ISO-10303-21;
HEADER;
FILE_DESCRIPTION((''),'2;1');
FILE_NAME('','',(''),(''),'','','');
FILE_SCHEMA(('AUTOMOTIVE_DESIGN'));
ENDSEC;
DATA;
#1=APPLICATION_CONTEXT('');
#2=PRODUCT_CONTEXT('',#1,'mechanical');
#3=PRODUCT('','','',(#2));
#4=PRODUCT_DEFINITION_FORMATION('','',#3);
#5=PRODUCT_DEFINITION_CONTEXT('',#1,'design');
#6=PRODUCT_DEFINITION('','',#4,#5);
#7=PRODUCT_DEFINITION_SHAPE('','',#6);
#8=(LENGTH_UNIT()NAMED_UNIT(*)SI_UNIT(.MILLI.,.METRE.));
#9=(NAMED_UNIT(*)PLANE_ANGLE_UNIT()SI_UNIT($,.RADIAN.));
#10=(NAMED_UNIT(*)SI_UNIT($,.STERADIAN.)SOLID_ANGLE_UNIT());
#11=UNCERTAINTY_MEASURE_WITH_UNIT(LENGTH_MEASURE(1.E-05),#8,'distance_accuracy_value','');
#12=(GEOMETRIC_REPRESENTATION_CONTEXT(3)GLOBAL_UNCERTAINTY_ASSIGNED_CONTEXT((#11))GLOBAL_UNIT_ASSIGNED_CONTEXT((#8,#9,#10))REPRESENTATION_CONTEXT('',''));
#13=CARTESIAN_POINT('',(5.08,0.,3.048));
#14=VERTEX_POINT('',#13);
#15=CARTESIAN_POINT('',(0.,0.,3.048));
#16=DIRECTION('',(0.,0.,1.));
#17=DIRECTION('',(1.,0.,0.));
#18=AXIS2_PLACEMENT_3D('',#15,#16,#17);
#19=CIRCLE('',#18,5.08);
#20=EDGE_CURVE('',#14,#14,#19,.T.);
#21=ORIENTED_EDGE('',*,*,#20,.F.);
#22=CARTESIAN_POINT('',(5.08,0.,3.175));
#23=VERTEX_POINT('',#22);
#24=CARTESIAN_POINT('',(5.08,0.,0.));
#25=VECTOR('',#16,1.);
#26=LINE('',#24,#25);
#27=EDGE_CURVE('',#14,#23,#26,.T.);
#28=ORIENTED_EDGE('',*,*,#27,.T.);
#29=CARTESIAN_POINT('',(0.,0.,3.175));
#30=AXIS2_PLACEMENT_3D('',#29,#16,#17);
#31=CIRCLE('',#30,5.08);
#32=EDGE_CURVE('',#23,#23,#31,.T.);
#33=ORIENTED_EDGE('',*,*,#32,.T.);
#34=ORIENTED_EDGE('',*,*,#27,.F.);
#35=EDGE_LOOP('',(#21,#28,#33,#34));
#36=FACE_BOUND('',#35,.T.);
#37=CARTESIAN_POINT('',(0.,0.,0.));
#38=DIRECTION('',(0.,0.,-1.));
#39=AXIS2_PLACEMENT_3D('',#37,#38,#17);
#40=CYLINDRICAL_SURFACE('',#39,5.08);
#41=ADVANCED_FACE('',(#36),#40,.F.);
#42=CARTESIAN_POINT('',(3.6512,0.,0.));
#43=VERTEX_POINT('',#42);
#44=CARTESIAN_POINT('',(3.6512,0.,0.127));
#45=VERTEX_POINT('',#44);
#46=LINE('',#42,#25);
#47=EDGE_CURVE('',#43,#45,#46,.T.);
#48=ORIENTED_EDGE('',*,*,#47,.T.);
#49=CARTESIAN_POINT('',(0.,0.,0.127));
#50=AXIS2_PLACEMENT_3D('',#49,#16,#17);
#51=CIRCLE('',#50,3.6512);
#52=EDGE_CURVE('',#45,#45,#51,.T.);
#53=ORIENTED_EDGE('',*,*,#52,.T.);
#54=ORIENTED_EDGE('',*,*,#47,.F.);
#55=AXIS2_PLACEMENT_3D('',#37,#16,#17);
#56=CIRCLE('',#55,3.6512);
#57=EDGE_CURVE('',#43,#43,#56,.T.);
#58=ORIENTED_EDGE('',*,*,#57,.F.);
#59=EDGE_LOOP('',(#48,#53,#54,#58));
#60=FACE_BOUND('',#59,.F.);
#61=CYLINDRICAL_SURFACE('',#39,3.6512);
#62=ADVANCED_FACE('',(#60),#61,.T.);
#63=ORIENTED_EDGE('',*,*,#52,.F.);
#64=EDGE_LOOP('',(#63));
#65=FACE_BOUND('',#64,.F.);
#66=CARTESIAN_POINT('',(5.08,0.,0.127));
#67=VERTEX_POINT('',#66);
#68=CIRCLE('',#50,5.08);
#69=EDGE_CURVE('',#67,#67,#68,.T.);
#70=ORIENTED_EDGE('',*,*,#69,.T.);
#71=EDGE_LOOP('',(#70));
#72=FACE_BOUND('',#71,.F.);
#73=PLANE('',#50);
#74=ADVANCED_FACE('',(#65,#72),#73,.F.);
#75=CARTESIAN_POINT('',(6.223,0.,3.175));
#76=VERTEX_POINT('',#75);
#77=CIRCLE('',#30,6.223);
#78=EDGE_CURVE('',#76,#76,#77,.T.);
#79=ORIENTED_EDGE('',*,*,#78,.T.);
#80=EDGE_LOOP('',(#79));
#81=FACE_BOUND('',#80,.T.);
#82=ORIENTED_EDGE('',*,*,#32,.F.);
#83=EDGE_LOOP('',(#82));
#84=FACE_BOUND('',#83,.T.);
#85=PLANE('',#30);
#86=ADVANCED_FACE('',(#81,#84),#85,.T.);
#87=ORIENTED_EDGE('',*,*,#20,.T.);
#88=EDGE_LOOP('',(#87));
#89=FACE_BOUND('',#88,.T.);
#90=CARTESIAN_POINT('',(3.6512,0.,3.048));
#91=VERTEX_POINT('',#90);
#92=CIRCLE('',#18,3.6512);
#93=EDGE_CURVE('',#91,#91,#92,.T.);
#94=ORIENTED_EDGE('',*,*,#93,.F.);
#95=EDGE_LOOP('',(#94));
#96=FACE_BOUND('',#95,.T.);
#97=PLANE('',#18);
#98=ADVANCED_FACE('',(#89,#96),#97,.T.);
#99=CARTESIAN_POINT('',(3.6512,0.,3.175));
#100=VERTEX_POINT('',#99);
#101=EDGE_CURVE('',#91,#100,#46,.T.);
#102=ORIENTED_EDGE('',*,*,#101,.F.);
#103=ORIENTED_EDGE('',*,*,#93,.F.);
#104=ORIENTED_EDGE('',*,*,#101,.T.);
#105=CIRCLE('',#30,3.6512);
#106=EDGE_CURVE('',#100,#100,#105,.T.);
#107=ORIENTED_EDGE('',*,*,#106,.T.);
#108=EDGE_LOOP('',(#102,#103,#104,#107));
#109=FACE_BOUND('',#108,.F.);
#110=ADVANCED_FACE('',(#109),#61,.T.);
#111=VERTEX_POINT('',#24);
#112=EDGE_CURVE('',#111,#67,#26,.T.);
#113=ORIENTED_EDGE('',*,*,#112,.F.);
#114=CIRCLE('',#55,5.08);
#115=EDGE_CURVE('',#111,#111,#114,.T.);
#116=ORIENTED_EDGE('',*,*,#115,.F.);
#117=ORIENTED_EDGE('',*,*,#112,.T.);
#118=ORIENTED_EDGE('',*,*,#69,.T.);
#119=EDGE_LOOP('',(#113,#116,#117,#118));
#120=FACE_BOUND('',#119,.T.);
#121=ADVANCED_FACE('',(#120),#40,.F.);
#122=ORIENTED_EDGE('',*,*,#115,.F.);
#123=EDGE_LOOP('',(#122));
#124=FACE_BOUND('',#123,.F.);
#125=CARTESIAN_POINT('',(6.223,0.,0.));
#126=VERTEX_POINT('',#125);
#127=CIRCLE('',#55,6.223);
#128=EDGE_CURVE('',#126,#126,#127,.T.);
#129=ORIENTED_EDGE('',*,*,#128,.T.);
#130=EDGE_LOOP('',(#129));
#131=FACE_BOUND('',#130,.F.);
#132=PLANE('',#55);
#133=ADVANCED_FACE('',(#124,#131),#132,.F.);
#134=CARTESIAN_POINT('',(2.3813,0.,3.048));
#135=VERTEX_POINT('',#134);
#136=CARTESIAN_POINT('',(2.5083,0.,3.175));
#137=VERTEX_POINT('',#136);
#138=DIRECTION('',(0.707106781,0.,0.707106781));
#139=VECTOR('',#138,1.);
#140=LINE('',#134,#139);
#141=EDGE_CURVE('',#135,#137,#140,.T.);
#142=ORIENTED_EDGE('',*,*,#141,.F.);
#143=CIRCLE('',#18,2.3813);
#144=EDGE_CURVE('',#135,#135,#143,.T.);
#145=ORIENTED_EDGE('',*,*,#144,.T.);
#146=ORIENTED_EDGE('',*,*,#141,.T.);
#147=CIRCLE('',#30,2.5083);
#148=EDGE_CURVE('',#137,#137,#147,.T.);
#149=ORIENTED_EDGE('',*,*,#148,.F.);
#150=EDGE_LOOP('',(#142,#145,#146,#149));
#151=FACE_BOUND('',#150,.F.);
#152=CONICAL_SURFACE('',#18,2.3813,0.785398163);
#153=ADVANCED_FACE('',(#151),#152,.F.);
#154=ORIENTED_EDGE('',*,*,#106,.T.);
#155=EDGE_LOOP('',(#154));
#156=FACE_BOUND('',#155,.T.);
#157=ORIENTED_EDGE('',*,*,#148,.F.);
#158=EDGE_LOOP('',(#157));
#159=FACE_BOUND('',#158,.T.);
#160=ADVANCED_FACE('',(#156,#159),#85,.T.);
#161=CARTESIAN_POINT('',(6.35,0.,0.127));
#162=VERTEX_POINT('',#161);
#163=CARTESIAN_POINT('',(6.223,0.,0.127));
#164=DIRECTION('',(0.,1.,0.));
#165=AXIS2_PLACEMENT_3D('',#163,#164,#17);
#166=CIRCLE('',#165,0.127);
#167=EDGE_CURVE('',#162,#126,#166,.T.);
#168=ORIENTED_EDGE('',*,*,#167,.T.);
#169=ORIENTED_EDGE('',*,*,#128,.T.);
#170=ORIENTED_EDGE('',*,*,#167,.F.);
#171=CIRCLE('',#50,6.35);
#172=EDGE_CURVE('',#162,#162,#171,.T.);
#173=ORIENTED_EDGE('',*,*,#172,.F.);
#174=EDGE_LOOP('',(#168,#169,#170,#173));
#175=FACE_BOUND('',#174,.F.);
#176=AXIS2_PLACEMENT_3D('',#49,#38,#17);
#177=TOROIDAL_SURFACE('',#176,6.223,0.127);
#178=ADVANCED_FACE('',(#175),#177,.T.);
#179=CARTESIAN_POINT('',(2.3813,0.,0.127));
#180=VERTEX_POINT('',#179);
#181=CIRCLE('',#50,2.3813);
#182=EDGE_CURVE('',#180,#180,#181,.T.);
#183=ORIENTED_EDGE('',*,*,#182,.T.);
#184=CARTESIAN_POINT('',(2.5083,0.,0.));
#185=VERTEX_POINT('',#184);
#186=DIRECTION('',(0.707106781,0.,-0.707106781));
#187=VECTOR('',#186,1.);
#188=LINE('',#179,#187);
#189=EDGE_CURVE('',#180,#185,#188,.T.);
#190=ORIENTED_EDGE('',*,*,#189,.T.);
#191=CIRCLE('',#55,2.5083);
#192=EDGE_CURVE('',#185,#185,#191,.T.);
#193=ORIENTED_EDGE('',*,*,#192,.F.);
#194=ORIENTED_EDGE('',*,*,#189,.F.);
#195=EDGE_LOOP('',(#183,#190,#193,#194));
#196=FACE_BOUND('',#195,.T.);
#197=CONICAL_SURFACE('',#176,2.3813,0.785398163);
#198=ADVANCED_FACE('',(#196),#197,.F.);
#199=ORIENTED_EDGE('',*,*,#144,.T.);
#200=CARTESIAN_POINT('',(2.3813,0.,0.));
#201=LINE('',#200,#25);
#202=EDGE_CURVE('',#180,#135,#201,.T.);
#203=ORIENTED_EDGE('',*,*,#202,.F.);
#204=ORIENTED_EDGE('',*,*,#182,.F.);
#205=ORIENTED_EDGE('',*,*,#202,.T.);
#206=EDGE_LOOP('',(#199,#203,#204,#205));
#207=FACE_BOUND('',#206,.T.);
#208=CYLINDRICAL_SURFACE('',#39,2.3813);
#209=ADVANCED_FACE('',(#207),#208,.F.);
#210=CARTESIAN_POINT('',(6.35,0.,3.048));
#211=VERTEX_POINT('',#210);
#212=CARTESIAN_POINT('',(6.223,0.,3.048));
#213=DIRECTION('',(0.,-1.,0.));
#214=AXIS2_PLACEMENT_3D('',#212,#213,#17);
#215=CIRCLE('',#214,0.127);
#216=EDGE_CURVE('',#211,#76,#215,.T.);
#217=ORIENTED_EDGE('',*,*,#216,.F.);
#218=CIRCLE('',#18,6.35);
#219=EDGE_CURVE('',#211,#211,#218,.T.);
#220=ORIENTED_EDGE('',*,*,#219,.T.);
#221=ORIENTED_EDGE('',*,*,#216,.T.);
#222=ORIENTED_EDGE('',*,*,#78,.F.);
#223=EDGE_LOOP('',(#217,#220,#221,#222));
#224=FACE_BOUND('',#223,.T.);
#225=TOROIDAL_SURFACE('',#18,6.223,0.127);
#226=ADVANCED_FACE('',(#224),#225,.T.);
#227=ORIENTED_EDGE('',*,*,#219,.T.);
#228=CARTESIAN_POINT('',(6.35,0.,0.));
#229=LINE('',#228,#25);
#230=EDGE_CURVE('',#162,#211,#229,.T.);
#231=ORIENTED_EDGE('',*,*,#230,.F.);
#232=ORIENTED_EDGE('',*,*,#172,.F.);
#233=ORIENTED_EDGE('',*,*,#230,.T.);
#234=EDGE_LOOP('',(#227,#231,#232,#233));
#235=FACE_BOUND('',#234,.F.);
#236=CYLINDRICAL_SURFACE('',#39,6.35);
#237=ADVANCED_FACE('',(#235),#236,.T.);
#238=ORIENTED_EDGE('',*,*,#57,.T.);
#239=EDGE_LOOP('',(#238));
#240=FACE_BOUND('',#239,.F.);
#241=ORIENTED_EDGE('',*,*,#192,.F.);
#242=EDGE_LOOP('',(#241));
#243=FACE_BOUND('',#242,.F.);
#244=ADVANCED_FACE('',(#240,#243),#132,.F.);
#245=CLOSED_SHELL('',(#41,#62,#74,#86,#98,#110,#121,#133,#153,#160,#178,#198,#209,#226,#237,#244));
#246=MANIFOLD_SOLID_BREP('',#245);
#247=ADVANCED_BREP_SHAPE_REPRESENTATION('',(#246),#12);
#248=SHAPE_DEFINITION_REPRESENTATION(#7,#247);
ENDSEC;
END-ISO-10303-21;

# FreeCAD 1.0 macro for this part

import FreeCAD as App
import Part
import Sketcher
Q = App.Units.Quantity


def edges_at(feature, points):
    """Names of the edges that pass closest to the given points."""
    edges = feature.Shape.Edges
    near = lambda p: min(range(len(edges)), key=lambda i: edges[i].distToShape(Part.Vertex(*p))[0])
    return sorted({f"Edge{near(p) + 1}" for p in points})

doc = App.newDocument("Part")
params = doc.addObject("Spreadsheet::Sheet", "Params")
for row, (alias, value) in enumerate([
    ("sketch1_diameter", "0.5 in"),
    ("sketch1_diameter2", "0.1875 in"),
    ("sketch1_diameter3", "0.4 in"),
    ("pad1_length", "0.125 in"),
    ("fillet_radius", "0.005 in"),
    ("chamfer_size", "0.005 in"),
    ("sketch2_diameter", "0.4 in"),
    ("pad2_length", "0.115 in"),
], start=1):
    params.set(f"A{row}", alias)
    params.set(f"B{row}", "=" + value)
    params.setAlias(f"B{row}", alias)

body = doc.addObject("PartDesign::Body", "Body")
body.AllowCompound = True

sketch1 = doc.addObject("Sketcher::SketchObject", "Sketch")
body.addObject(sketch1)
sketch1.AttachmentSupport = (doc.XY_Plane, [""])
sketch1.MapMode = "FlatFace"
sketch1.addGeometry(Part.Circle(App.Vector(0, 0, 0), App.Vector(0, 0, 1), 6.35), False)
sketch1.addGeometry(Part.Circle(App.Vector(0, 0, 0), App.Vector(0, 0, 1), 5.08), False)
sketch1.addGeometry(Part.Circle(App.Vector(0, 0, 0), App.Vector(0, 0, 1), 3.6512), False)
sketch1.addGeometry(Part.Circle(App.Vector(0, 0, 0), App.Vector(0, 0, 1), 2.3813), False)
sketch1.addConstraint(Sketcher.Constraint("Coincident", 0, 3, -1, 1))
sketch1.addConstraint(Sketcher.Constraint("Coincident", 1, 3, -1, 1))
sketch1.addConstraint(Sketcher.Constraint("Coincident", 2, 3, -1, 1))
sketch1.addConstraint(Sketcher.Constraint("Coincident", 3, 3, -1, 1))
sketch1.addConstraint(Sketcher.Constraint("Diameter", 0, Q("0.5 in")))
sketch1.addConstraint(Sketcher.Constraint("Diameter", 3, Q("0.1875 in")))
sketch1.addConstraint(Sketcher.Constraint("Diameter", 1, Q("0.4 in")))
sketch1.addConstraint(Sketcher.Constraint("Diameter", 2, Q("0.2875 in")))
sketch1.setExpression("Constraints[4]", "Params.sketch1_diameter")
sketch1.setExpression("Constraints[5]", "Params.sketch1_diameter2")
sketch1.setExpression("Constraints[6]", "Params.sketch1_diameter3")
pad1 = doc.addObject("PartDesign::Pad", "Pad")
body.addObject(pad1)
pad1.Profile = sketch1
pad1.setExpression("Length", "Params.pad1_length")
doc.recompute()

fillet = doc.addObject("PartDesign::Fillet", "Fillet")
body.addObject(fillet)
fillet.Base = (pad1, edges_at(pad1, [(-6.35, 0, 3.175), (-6.35, 0, 0)]))
fillet.setExpression("Radius", "Params.fillet_radius")
doc.recompute()

chamfer = doc.addObject("PartDesign::Chamfer", "Chamfer")
body.addObject(chamfer)
chamfer.Base = (fillet, edges_at(fillet, [(-2.381, 0, 3.175), (-2.381, 0, 0)]))
chamfer.setExpression("Size", "Params.chamfer_size")

sketch2 = doc.addObject("Sketcher::SketchObject", "Sketch001")
body.addObject(sketch2)
sketch2.AttachmentSupport = (doc.XY_Plane, [""])
sketch2.MapMode = "FlatFace"
sketch2.AttachmentOffset = App.Placement(App.Vector(0, 0, 0.0625 * 25.4), App.Rotation())
sketch2.addGeometry(Part.Circle(App.Vector(0, 0, 0), App.Vector(0, 0, 1), 5.08), False)
sketch2.addGeometry(Part.Circle(App.Vector(0, 0, 0), App.Vector(0, 0, 1), 3.6512), False)
sketch2.addConstraint(Sketcher.Constraint("Coincident", 0, 3, -1, 1))
sketch2.addConstraint(Sketcher.Constraint("Coincident", 1, 3, -1, 1))
sketch2.addConstraint(Sketcher.Constraint("Diameter", 0, Q("0.4 in")))
sketch2.addConstraint(Sketcher.Constraint("Diameter", 1, Q("0.2875 in")))
sketch2.setExpression("Constraints[2]", "Params.sketch2_diameter")
pad2 = doc.addObject("PartDesign::Pad", "Pad001")
body.addObject(pad2)
pad2.Profile = sketch2
pad2.setExpression("Length", "Params.pad2_length")
pad2.Midplane = True

doc.recompute()
